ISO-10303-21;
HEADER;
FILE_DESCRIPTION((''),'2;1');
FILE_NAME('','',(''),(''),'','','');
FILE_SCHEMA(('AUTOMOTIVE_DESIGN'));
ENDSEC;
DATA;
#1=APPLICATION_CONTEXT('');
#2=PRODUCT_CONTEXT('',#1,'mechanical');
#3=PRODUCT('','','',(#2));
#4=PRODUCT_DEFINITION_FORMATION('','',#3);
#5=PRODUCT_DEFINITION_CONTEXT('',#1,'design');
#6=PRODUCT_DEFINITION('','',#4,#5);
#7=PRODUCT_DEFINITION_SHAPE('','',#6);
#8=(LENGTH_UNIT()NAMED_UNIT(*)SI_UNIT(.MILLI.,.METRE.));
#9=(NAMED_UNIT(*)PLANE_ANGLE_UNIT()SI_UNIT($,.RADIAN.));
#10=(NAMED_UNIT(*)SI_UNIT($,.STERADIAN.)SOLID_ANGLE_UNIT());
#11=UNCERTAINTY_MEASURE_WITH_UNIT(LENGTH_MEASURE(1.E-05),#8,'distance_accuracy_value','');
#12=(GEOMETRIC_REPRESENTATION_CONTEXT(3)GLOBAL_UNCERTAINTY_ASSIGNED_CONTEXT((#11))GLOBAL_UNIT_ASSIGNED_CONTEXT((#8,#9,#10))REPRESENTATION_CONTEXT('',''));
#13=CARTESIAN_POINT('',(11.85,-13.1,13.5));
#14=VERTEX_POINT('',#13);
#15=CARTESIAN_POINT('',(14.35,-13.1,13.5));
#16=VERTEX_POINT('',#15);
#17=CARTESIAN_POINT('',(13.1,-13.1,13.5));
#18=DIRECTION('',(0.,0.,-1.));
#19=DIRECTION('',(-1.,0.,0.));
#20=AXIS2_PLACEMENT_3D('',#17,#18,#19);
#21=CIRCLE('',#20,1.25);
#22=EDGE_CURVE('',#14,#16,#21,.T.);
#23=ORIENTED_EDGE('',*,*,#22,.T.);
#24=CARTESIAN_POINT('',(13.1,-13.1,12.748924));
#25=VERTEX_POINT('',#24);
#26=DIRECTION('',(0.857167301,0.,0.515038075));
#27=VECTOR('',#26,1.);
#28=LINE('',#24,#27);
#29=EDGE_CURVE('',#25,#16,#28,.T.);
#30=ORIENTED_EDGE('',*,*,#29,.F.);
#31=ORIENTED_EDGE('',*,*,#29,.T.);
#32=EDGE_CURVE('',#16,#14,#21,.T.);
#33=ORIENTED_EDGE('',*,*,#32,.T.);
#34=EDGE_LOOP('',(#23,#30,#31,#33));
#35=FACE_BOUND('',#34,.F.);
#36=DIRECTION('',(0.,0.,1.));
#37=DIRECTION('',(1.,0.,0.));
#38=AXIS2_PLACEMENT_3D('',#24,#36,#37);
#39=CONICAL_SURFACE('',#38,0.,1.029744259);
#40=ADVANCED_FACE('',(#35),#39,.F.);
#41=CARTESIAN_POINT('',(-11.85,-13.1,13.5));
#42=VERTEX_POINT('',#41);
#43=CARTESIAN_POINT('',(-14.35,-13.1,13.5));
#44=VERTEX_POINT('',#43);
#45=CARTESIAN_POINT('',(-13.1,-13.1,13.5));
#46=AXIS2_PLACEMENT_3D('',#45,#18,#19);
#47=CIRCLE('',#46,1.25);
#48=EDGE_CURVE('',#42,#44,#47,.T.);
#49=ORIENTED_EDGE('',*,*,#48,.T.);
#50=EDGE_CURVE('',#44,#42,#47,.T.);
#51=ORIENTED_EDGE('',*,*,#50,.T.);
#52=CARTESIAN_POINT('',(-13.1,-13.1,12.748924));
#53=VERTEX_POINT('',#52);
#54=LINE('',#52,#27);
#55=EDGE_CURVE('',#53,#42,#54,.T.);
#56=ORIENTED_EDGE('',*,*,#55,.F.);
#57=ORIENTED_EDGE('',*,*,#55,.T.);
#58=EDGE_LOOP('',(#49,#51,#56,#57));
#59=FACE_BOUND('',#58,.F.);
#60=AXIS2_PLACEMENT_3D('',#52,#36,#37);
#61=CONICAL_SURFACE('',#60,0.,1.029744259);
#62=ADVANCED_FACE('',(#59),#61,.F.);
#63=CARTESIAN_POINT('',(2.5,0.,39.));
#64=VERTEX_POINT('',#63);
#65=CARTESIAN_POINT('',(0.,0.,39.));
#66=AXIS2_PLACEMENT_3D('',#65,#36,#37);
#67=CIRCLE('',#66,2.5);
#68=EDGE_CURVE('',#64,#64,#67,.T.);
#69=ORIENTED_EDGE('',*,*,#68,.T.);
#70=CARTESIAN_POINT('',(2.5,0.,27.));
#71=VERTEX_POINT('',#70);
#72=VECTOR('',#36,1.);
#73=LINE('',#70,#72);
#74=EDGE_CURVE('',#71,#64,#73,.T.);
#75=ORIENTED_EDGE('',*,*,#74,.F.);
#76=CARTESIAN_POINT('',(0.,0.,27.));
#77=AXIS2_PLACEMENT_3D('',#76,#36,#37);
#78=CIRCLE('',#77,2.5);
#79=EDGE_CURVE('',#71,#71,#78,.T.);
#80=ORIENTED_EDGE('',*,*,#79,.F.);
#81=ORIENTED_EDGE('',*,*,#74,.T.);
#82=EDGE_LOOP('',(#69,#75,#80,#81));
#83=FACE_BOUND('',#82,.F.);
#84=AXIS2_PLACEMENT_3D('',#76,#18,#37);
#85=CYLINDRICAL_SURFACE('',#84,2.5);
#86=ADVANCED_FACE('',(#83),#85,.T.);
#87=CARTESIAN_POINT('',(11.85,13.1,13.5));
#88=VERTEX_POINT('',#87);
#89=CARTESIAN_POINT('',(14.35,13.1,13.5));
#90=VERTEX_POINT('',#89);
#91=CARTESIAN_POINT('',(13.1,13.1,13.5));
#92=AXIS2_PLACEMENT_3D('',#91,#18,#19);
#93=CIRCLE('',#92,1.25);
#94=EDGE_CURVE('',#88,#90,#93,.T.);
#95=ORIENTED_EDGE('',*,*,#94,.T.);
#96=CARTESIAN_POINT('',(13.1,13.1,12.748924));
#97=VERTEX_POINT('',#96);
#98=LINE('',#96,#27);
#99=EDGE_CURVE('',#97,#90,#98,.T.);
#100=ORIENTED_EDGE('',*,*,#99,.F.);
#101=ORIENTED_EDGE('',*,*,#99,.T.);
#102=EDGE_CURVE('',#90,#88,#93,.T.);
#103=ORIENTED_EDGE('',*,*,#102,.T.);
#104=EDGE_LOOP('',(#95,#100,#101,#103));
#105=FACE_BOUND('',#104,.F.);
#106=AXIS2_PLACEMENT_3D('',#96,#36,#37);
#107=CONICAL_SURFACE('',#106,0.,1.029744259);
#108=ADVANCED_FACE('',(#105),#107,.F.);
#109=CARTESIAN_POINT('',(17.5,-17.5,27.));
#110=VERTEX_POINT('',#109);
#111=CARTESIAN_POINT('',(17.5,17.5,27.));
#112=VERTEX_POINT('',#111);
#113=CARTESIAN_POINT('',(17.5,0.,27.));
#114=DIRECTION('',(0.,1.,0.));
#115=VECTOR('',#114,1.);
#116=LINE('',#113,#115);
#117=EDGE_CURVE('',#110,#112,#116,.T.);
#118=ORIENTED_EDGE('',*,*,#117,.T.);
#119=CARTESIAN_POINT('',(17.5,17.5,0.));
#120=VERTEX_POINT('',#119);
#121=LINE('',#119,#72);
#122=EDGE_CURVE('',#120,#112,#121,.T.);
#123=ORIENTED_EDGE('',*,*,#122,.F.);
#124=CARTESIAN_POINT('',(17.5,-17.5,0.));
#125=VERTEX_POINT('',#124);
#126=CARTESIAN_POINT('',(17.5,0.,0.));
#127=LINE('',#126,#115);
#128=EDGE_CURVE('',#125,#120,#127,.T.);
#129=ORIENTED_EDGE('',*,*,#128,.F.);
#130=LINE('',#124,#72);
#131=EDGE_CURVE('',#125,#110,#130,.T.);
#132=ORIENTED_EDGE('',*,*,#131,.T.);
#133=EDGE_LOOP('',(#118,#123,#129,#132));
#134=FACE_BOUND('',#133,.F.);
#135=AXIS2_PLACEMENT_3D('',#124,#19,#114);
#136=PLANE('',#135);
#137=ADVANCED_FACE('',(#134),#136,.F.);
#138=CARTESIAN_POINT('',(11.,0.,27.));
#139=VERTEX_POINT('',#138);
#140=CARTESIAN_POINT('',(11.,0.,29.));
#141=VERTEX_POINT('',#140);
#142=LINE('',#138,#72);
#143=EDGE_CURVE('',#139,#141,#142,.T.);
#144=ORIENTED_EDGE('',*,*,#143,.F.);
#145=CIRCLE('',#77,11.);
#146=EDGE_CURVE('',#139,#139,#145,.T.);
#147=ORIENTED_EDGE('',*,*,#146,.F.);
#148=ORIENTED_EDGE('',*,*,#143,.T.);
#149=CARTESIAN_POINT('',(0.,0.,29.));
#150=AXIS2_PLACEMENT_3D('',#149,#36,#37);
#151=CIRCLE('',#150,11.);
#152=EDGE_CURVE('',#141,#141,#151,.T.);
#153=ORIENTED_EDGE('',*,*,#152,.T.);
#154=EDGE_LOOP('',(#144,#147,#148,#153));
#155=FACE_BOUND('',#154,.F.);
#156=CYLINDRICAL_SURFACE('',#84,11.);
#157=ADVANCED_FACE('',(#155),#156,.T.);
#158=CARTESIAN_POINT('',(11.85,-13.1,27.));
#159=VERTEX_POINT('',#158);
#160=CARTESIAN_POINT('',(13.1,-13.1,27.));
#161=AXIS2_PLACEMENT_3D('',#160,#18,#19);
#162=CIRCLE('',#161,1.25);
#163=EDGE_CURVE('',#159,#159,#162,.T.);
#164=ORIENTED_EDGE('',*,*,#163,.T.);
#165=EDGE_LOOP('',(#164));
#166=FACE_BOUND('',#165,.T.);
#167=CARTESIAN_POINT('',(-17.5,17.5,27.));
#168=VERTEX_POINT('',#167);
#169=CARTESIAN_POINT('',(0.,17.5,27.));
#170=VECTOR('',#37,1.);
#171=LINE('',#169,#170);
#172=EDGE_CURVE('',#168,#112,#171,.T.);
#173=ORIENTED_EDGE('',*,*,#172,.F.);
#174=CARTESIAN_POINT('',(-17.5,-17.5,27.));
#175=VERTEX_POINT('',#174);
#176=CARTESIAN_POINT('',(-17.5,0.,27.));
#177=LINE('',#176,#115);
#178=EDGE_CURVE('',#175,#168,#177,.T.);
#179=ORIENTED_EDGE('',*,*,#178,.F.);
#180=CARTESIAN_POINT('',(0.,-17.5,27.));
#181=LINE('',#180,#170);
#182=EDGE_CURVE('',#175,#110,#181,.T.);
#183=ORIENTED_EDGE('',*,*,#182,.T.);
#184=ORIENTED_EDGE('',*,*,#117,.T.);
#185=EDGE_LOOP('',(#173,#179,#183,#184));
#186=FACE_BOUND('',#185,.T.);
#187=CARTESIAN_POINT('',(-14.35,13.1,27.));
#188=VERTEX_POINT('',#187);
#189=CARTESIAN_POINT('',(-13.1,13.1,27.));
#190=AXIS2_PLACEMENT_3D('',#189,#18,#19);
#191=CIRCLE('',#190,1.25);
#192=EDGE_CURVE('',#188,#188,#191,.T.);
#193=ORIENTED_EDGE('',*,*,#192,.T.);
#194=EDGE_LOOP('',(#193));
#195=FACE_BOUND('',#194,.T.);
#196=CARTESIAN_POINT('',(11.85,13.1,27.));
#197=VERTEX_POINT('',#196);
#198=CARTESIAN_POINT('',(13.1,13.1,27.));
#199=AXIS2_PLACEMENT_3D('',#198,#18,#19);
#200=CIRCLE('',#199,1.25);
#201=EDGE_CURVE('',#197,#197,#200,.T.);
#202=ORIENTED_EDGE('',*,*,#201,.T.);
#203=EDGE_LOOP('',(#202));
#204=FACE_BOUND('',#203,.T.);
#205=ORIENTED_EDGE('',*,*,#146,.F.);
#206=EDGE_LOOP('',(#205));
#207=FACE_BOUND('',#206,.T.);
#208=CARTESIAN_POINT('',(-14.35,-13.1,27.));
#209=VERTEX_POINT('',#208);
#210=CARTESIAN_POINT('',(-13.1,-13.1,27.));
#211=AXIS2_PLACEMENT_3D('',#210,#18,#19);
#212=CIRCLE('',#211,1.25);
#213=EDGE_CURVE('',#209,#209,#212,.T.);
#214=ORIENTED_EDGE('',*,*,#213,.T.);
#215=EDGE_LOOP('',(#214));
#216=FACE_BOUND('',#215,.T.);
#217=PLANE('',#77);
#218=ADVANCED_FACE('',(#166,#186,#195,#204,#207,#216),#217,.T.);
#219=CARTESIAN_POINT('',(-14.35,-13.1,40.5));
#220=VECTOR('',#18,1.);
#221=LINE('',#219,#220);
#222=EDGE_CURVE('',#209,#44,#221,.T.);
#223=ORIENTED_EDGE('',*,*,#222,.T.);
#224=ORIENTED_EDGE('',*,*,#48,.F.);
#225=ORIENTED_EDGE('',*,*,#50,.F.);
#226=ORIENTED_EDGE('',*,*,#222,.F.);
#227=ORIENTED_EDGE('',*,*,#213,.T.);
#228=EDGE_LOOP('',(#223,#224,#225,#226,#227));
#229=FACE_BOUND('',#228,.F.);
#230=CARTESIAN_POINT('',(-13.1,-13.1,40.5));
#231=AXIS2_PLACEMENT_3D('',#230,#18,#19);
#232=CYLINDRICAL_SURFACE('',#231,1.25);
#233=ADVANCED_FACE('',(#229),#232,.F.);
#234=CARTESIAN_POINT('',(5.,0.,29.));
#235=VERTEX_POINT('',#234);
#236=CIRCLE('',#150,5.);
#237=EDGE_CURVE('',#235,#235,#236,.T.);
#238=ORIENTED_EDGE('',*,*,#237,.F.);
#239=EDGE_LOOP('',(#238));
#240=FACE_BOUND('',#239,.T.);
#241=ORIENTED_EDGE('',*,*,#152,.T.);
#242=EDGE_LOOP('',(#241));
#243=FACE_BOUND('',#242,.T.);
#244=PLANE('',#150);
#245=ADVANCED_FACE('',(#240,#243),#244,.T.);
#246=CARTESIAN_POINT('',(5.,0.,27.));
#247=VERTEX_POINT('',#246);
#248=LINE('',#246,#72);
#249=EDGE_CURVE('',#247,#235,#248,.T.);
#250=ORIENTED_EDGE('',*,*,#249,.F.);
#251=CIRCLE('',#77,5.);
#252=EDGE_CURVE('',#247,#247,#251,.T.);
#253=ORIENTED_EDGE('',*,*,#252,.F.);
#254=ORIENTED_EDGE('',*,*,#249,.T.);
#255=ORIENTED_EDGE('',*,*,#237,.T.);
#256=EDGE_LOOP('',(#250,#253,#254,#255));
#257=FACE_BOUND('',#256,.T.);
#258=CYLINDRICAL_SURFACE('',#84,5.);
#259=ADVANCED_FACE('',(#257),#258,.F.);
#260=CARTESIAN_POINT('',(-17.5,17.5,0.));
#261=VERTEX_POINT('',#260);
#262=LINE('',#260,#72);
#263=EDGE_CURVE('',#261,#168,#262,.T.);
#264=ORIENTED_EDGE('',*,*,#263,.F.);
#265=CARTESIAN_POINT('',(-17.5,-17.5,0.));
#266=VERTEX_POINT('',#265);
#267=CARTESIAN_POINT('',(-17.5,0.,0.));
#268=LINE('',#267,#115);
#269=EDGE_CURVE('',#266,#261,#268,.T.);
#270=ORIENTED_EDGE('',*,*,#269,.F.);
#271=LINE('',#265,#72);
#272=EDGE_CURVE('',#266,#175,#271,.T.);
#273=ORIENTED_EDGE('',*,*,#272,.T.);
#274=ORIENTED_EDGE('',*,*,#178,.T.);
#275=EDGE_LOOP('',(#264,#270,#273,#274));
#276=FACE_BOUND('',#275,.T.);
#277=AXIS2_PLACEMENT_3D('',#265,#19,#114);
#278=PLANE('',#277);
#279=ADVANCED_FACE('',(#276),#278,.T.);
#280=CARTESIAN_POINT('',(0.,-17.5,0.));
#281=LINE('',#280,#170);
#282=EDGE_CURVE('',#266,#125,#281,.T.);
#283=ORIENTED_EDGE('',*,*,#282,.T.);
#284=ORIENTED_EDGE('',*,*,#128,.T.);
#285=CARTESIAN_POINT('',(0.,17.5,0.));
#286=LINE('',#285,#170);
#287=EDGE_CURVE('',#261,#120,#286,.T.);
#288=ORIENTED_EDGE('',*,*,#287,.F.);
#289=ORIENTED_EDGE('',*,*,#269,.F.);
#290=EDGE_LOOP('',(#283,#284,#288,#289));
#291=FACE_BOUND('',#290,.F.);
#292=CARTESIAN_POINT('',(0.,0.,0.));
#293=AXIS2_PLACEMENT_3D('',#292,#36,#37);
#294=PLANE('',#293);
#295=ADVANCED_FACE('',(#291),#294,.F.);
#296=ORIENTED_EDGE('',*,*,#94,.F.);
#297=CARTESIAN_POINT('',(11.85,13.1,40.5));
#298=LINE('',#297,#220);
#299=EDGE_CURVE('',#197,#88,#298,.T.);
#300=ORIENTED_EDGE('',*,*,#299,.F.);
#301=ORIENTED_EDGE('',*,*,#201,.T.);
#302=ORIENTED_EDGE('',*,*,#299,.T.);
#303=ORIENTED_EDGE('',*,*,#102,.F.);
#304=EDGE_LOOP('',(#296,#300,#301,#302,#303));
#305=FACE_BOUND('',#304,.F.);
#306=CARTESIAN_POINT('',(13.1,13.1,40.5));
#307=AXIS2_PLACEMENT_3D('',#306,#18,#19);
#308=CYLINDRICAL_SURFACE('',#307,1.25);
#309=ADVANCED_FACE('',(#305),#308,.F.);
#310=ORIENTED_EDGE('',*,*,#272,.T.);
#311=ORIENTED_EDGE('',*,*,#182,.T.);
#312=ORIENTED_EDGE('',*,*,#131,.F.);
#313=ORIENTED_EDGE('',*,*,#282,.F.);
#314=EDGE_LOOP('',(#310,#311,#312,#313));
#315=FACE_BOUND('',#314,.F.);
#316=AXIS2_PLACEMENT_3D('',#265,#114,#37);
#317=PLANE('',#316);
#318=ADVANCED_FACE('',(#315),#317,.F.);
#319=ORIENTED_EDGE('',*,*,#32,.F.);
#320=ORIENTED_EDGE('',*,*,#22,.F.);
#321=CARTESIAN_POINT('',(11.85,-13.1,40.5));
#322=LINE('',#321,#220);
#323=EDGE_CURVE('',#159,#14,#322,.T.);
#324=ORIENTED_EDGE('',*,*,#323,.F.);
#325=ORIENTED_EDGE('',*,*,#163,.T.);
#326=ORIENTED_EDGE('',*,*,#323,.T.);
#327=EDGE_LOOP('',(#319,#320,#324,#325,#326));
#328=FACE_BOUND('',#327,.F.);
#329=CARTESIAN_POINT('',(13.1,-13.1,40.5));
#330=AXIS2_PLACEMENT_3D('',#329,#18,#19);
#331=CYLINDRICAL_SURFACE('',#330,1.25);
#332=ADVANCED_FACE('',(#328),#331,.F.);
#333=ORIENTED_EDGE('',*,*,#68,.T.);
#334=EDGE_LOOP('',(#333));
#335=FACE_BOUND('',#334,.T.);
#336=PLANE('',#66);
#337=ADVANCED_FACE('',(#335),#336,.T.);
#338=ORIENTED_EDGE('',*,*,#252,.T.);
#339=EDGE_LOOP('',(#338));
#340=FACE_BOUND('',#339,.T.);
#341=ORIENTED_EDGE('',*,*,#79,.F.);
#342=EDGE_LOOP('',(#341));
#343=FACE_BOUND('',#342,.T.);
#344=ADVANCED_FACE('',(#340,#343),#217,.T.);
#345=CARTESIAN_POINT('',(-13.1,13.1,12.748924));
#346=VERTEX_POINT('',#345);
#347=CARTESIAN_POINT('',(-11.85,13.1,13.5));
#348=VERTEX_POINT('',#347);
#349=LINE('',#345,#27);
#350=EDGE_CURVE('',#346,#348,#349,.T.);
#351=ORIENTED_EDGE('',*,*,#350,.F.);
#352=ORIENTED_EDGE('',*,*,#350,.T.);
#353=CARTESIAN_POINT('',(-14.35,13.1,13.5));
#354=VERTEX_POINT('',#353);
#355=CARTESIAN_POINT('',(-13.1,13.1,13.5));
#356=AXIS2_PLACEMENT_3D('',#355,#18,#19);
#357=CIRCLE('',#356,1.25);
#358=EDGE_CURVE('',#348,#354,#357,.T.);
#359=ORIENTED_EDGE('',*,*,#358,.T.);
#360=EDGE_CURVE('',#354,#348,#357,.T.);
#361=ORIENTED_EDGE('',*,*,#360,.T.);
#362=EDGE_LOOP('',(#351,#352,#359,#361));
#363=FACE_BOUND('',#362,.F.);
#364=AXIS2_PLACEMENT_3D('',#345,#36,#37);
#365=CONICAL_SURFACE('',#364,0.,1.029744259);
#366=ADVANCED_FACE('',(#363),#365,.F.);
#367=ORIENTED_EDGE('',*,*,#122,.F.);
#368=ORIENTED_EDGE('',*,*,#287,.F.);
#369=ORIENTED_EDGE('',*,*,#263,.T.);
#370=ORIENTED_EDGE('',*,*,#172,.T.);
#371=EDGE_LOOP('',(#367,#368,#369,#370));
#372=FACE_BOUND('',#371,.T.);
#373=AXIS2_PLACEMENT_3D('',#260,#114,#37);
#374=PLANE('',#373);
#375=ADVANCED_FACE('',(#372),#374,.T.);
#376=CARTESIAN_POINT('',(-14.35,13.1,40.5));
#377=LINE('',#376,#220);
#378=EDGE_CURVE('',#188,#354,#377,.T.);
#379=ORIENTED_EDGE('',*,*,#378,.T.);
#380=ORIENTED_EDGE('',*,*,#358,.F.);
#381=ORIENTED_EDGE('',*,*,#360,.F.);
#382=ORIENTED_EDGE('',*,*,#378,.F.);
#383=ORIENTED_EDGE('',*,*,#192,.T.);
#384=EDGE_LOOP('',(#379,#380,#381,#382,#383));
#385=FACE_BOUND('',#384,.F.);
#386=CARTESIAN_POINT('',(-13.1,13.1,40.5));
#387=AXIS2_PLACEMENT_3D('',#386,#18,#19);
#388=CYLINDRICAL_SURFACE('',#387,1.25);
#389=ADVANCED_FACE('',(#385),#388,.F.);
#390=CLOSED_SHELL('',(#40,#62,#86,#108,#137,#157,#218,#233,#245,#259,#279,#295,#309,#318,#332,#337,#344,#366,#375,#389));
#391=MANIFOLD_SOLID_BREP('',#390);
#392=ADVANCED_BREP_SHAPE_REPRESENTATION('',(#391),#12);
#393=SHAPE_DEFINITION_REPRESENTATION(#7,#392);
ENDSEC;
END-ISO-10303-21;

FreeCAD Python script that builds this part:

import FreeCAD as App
import Part
import Sketcher

V = App.Vector
Q = App.Units.Quantity

doc = App.newDocument("Part")
body = doc.addObject("PartDesign::Body", "Body")

# Sketch on XY plane
sketch1 = body.newObject("Sketcher::SketchObject", "Sketch")
sketch1.AttachmentSupport = (doc.getObject("XY_Plane"), [""])
sketch1.MapMode = "FlatFace"
sketch1.addGeometry([
    Part.LineSegment(V(-18, 18, 0), V(-18, -18, 0)),
    Part.LineSegment(V(-18, -18, 0), V(18, -18, 0)),
    Part.LineSegment(V(18, -18, 0), V(18, 18, 0)),
    Part.LineSegment(V(18, 18, 0), V(-18, 18, 0)),
], False)
sketch1.addConstraint([
    Sketcher.Constraint("Coincident", 0, 2, 1, 1),
    Sketcher.Constraint("Coincident", 1, 2, 2, 1),
    Sketcher.Constraint("Coincident", 2, 2, 3, 1),
    Sketcher.Constraint("Coincident", 3, 2, 0, 1),
    Sketcher.Constraint("Vertical", 0),
    Sketcher.Constraint("Horizontal", 1),
    Sketcher.Constraint("Vertical", 2),
    Sketcher.Constraint("Horizontal", 3),
    Sketcher.Constraint("Symmetric", 0, 2, 2, 2, -1, 1),
    Sketcher.Constraint("Equal", 3, 0),
    Sketcher.Constraint("DistanceX", 1, 1, 1, 2, Q("35 mm")),
])
pad1 = body.newObject("PartDesign::Pad", "Pad")
pad1.Profile = sketch1
pad1.Length = 27

# Sketch on XY plane
sketch2 = body.newObject("Sketcher::SketchObject", "Sketch001")
sketch2.AttachmentSupport = (doc.getObject("XY_Plane"), [""])
sketch2.MapMode = "FlatFace"
sketch2.AttachmentOffset = App.Placement(V(0, 0, 27), App.Rotation())
sketch2.addGeometry([
    Part.Circle(V(0, 0, 0), V(0, 0, 1), 11),
    Part.Circle(V(0, 0, 0), V(0, 0, 1), 5),
], False)
sketch2.addConstraint([
    Sketcher.Constraint("Coincident", 0, 3, -1, 1),
    Sketcher.Constraint("Coincident", 1, 3, -1, 1),
    Sketcher.Constraint("Diameter", 0, Q("22 mm")),
    Sketcher.Constraint("Diameter", 1, Q("10 mm")),
])
pad2 = body.newObject("PartDesign::Pad", "Pad001")
pad2.Profile = sketch2
pad2.Length = 2

# Sketch on XY plane
sketch3 = body.newObject("Sketcher::SketchObject", "Sketch002")
sketch3.AttachmentSupport = (doc.getObject("XY_Plane"), [""])
sketch3.MapMode = "FlatFace"
sketch3.AttachmentOffset = App.Placement(V(0, 0, 27), App.Rotation())
sketch3.addGeometry(Part.Circle(V(0, 0, 0), V(0, 0, 1), 2.5), False)
sketch3.addConstraint([
    Sketcher.Constraint("Coincident", 0, 3, -1, 1),
    Sketcher.Constraint("Diameter", 0, Q("5 mm")),
])
pad3 = body.newObject("PartDesign::Pad", "Pad002")
pad3.Profile = sketch3
pad3.Length = 12

# Sketch on XY plane
sketch4 = body.newObject("Sketcher::SketchObject", "Sketch003")
sketch4.AttachmentSupport = (doc.getObject("XY_Plane"), [""])
sketch4.MapMode = "FlatFace"
sketch4.AttachmentOffset = App.Placement(V(0, 0, 27), App.Rotation())
sketch4.addGeometry([
    Part.Circle(V(-13.1, 13.1, 0), V(0, 0, 1), 1.2),
    Part.Circle(V(13.1, 13.1, 0), V(0, 0, 1), 1.2),
    Part.Circle(V(13.1, -13.1, 0), V(0, 0, 1), 1.2),
    Part.Circle(V(-13.1, -13.1, 0), V(0, 0, 1), 1.2),
], False)
sketch4.addConstraint([
    Sketcher.Constraint("Equal", 0, 1),
    Sketcher.Constraint("Equal", 1, 2),
    Sketcher.Constraint("Equal", 2, 3),
    Sketcher.Constraint("Symmetric", 0, 3, 2, 3, -1, 1),
    Sketcher.Constraint("Symmetric", 1, 3, 3, 3, -1, 1),
    Sketcher.Constraint("Symmetric", 0, 3, 1, 3, -2),
    Sketcher.Constraint("Diameter", 0, Q("2.5 mm")),
    Sketcher.Constraint("DistanceX", 0, 3, -1, 1, Q("13.1 mm")),
    Sketcher.Constraint("DistanceY", -1, 1, 0, 3, Q("13.1 mm")),
])
doc.recompute()
hole = body.newObject("PartDesign::Hole", "Hole")
hole.Profile = sketch4
hole.ThreadType = "None"
hole.Diameter = 2.5
hole.DepthType = "Dimension"
hole.Depth = 13.5
hole.DrillPoint = "Angled"
hole.DrillPointAngle = 118

doc.recompute()
